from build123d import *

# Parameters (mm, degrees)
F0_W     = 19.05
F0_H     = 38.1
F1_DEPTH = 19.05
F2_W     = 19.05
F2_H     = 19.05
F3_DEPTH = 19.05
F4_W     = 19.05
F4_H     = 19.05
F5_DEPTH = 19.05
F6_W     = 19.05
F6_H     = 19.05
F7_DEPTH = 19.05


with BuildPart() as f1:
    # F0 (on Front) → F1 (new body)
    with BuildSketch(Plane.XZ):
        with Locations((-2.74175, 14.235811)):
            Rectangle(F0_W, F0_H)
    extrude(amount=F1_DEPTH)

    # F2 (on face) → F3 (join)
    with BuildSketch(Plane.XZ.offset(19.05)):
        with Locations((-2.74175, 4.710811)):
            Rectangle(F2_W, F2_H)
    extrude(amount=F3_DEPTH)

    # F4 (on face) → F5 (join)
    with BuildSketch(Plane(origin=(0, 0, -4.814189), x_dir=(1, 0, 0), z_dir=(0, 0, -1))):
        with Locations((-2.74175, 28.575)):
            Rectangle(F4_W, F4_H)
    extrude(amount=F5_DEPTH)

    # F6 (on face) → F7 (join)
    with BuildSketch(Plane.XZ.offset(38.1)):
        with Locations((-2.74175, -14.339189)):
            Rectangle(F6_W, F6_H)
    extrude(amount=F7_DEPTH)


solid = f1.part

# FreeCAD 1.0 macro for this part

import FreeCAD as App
import Part
import Sketcher
from FreeCAD import Vector
Q = App.Units.Quantity

doc = App.newDocument("Part")
body = doc.addObject("PartDesign::Body", "Body")

# Sketch on XZ plane
sketch1 = body.newObject("Sketcher::SketchObject", "Sketch")
sketch1.AttachmentSupport = (doc.getObject("XZ_Plane"), [""])
sketch1.MapMode = "FlatFace"
sketch1.addGeometry(Part.LineSegment(Vector(-12, 33, 0), Vector(-12, -5, 0)), False)
sketch1.addGeometry(Part.LineSegment(Vector(-12, -5, 0), Vector(7, -5, 0)), False)
sketch1.addGeometry(Part.LineSegment(Vector(7, -5, 0), Vector(7, 33, 0)), False)
sketch1.addGeometry(Part.LineSegment(Vector(7, 33, 0), Vector(-12, 33, 0)), False)
sketch1.addConstraint(Sketcher.Constraint("Coincident", 0, 2, 1, 1))
sketch1.addConstraint(Sketcher.Constraint("Coincident", 1, 2, 2, 1))
sketch1.addConstraint(Sketcher.Constraint("Coincident", 2, 2, 3, 1))
sketch1.addConstraint(Sketcher.Constraint("Coincident", 3, 2, 0, 1))
sketch1.addConstraint(Sketcher.Constraint("Vertical", 0))
sketch1.addConstraint(Sketcher.Constraint("Horizontal", 1))
sketch1.addConstraint(Sketcher.Constraint("Vertical", 2))
sketch1.addConstraint(Sketcher.Constraint("Horizontal", 3))
sketch1.addConstraint(Sketcher.Constraint("DistanceY", 0, 2, 0, 1, Q("1.5 in")))
sketch1.addConstraint(Sketcher.Constraint("DistanceX", 1, 1, 1, 2, Q("0.75 in")))
sketch1.addConstraint(Sketcher.Constraint("DistanceX", 0, 2, -1, 1, Q("12.26675 mm")))
sketch1.addConstraint(Sketcher.Constraint("DistanceY", 0, 2, -1, 1, Q("4.814189 mm")))
pad1 = body.newObject("PartDesign::Pad", "Pad")
pad1.Profile = sketch1
pad1.Length = Q("0.75 in")

# Sketch on XZ plane
sketch2 = body.newObject("Sketcher::SketchObject", "Sketch001")
sketch2.AttachmentSupport = (doc.getObject("XZ_Plane"), [""])
sketch2.MapMode = "FlatFace"
sketch2.AttachmentOffset = App.Placement(Vector(0, 0, 0.75 * 25.4), App.Rotation())
sketch2.addGeometry(Part.LineSegment(Vector(-12, 14, 0), Vector(-12, -5, 0)), False)
sketch2.addGeometry(Part.LineSegment(Vector(-12, -5, 0), Vector(7, -5, 0)), False)
sketch2.addGeometry(Part.LineSegment(Vector(7, -5, 0), Vector(7, 14, 0)), False)
sketch2.addGeometry(Part.LineSegment(Vector(7, 14, 0), Vector(-12, 14, 0)), False)
sketch2.addConstraint(Sketcher.Constraint("Coincident", 0, 2, 1, 1))
sketch2.addConstraint(Sketcher.Constraint("Coincident", 1, 2, 2, 1))
sketch2.addConstraint(Sketcher.Constraint("Coincident", 2, 2, 3, 1))
sketch2.addConstraint(Sketcher.Constraint("Coincident", 3, 2, 0, 1))
sketch2.addConstraint(Sketcher.Constraint("Vertical", 0))
sketch2.addConstraint(Sketcher.Constraint("Horizontal", 1))
sketch2.addConstraint(Sketcher.Constraint("Vertical", 2))
sketch2.addConstraint(Sketcher.Constraint("Horizontal", 3))
sketch2.addConstraint(Sketcher.Constraint("Equal", 3, 0))
sketch2.addConstraint(Sketcher.Constraint("DistanceX", 1, 1, 1, 2, Q("0.75 in")))
sketch2.addConstraint(Sketcher.Constraint("DistanceX", 0, 2, -1, 1, Q("12.26675 mm")))
sketch2.addConstraint(Sketcher.Constraint("DistanceY", 0, 2, -1, 1, Q("4.814189 mm")))
pad2 = body.newObject("PartDesign::Pad", "Pad001")
pad2.Profile = sketch2
pad2.Length = Q("0.75 in")

# Sketch on XY plane
sketch3 = body.newObject("Sketcher::SketchObject", "Sketch002")
sketch3.AttachmentSupport = (doc.getObject("XY_Plane"), [""])
sketch3.MapMode = "FlatFace"
sketch3.AttachmentOffset = App.Placement(Vector(0, 0, -4.814189), App.Rotation())
sketch3.addGeometry(Part.LineSegment(Vector(-12, -38, 0), Vector(-12, -19, 0)), False)
sketch3.addGeometry(Part.LineSegment(Vector(-12, -19, 0), Vector(7, -19, 0)), False)
sketch3.addGeometry(Part.LineSegment(Vector(7, -19, 0), Vector(7, -38, 0)), False)
sketch3.addGeometry(Part.LineSegment(Vector(7, -38, 0), Vector(-12, -38, 0)), False)
sketch3.addConstraint(Sketcher.Constraint("Coincident", 0, 2, 1, 1))
sketch3.addConstraint(Sketcher.Constraint("Coincident", 1, 2, 2, 1))
sketch3.addConstraint(Sketcher.Constraint("Coincident", 2, 2, 3, 1))
sketch3.addConstraint(Sketcher.Constraint("Coincident", 3, 2, 0, 1))
sketch3.addConstraint(Sketcher.Constraint("Vertical", 0))
sketch3.addConstraint(Sketcher.Constraint("Horizontal", 1))
sketch3.addConstraint(Sketcher.Constraint("Vertical", 2))
sketch3.addConstraint(Sketcher.Constraint("Horizontal", 3))
sketch3.addConstraint(Sketcher.Constraint("Equal", 3, 0))
sketch3.addConstraint(Sketcher.Constraint("DistanceX", 1, 1, 1, 2, Q("0.75 in")))
sketch3.addConstraint(Sketcher.Constraint("DistanceY", 2, 2, -1, 1, Q("1.5 in")))
sketch3.addConstraint(Sketcher.Constraint("DistanceX", 0, 2, -1, 1, Q("12.26675 mm")))
pad3 = body.newObject("PartDesign::Pad", "Pad002")
pad3.Profile = sketch3
pad3.Length = Q("0.75 in")
pad3.Reversed = True

# Sketch on XZ plane
sketch4 = body.newObject("Sketcher::SketchObject", "Sketch003")
sketch4.AttachmentSupport = (doc.getObject("XZ_Plane"), [""])
sketch4.MapMode = "FlatFace"
sketch4.AttachmentOffset = App.Placement(Vector(0, 0, 1.5 * 25.4), App.Rotation())
sketch4.addGeometry(Part.LineSegment(Vector(-12, -5, 0), Vector(-12, -24, 0)), False)
sketch4.addGeometry(Part.LineSegment(Vector(-12, -24, 0), Vector(7, -24, 0)), False)
sketch4.addGeometry(Part.LineSegment(Vector(7, -24, 0), Vector(7, -5, 0)), False)
sketch4.addGeometry(Part.LineSegment(Vector(7, -5, 0), Vector(-12, -5, 0)), False)
sketch4.addConstraint(Sketcher.Constraint("Coincident", 0, 2, 1, 1))
sketch4.addConstraint(Sketcher.Constraint("Coincident", 1, 2, 2, 1))
sketch4.addConstraint(Sketcher.Constraint("Coincident", 2, 2, 3, 1))
sketch4.addConstraint(Sketcher.Constraint("Coincident", 3, 2, 0, 1))
sketch4.addConstraint(Sketcher.Constraint("Vertical", 0))
sketch4.addConstraint(Sketcher.Constraint("Horizontal", 1))
sketch4.addConstraint(Sketcher.Constraint("Vertical", 2))
sketch4.addConstraint(Sketcher.Constraint("Horizontal", 3))
sketch4.addConstraint(Sketcher.Constraint("Equal", 3, 0))
sketch4.addConstraint(Sketcher.Constraint("DistanceX", 1, 1, 1, 2, Q("0.75 in")))
sketch4.addConstraint(Sketcher.Constraint("DistanceX", 0, 2, -1, 1, Q("12.26675 mm")))
sketch4.addConstraint(Sketcher.Constraint("DistanceY", 0, 2, -1, 1, Q("23.864189 mm")))
pad4 = body.newObject("PartDesign::Pad", "Pad003")
pad4.Profile = sketch4
pad4.Length = Q("0.75 in")

doc.recompute()
